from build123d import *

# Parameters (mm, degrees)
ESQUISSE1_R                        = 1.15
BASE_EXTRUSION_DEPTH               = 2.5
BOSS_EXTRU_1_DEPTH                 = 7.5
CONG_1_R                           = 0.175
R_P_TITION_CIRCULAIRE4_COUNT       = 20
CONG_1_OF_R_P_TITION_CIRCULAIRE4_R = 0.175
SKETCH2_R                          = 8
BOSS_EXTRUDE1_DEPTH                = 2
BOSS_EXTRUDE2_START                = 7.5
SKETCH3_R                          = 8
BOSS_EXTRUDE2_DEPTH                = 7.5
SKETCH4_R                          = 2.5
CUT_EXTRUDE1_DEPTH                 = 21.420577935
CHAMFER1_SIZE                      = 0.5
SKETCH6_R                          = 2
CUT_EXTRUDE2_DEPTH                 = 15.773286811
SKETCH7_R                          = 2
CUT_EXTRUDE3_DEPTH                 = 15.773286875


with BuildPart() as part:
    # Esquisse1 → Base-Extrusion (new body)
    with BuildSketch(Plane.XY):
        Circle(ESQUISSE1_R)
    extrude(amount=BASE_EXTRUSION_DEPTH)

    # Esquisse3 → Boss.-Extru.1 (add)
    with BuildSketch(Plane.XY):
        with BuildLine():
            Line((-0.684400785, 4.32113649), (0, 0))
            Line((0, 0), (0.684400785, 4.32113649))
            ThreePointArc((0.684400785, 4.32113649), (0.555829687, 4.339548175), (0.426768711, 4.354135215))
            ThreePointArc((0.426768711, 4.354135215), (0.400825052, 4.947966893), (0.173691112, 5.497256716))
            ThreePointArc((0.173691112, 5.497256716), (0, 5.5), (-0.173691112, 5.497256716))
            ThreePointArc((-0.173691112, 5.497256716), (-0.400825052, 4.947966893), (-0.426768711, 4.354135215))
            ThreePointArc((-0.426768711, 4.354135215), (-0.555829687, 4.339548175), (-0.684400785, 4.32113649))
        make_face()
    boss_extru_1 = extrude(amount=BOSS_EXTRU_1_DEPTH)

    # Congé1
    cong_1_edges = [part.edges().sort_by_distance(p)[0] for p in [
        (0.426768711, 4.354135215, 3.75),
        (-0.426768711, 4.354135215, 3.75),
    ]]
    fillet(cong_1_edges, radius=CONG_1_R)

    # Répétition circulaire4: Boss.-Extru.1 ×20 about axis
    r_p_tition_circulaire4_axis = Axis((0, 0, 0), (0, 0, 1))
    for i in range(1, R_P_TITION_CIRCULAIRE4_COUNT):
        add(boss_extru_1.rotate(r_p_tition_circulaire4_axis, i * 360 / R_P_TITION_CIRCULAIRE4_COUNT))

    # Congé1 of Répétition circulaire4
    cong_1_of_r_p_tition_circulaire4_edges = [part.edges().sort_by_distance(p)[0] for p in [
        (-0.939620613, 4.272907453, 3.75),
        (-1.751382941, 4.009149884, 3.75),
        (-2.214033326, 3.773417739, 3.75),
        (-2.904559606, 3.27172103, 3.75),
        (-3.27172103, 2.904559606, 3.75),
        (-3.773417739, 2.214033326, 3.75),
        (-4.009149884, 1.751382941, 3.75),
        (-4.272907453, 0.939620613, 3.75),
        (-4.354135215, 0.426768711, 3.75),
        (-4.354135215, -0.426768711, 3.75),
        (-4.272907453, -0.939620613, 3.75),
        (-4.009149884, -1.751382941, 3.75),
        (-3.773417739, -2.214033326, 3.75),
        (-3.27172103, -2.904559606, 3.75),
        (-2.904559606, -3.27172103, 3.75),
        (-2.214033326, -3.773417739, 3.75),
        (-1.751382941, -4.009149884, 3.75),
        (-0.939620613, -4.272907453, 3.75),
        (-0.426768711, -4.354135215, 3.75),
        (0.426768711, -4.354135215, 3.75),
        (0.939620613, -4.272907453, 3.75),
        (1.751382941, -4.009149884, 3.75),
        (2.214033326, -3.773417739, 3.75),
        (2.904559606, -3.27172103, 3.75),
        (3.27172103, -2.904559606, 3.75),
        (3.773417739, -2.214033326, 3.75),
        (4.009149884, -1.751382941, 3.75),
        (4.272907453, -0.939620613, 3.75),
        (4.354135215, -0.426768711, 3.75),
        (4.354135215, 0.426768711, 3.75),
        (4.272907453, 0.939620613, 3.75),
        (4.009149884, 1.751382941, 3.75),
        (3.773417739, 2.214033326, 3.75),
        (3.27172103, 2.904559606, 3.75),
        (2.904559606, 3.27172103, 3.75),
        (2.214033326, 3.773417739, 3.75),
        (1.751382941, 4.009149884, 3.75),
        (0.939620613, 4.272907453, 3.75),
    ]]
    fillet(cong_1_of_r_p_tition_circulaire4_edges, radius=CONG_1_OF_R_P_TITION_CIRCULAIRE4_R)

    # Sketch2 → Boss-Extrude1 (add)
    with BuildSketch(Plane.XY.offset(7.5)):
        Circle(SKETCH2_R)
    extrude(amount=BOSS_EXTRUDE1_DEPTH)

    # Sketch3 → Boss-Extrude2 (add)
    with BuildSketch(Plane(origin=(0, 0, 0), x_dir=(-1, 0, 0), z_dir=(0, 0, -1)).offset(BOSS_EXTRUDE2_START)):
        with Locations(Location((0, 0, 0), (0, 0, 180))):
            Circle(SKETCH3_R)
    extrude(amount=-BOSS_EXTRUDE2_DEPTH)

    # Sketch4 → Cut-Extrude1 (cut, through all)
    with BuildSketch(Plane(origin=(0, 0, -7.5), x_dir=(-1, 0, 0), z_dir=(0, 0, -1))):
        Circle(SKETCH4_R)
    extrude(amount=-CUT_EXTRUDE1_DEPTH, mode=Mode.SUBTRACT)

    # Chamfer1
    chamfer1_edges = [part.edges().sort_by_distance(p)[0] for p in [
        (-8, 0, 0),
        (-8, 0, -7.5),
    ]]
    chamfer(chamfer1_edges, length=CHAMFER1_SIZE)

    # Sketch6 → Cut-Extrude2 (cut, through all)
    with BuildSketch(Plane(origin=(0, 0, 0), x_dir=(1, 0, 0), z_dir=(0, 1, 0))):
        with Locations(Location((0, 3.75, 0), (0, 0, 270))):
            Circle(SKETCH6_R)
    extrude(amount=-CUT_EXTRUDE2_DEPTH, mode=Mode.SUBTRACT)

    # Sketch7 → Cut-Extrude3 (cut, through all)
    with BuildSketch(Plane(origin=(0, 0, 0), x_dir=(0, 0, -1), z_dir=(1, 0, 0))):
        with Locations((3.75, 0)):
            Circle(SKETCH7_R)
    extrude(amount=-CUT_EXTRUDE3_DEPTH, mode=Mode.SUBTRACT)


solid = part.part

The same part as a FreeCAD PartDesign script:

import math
import FreeCAD as App
import Part
import Sketcher
Q = App.Units.Quantity


def edges_at(feature, points):
    """Names of the edges that pass closest to the given points."""
    edges = feature.Shape.Edges
    near = lambda p: min(range(len(edges)), key=lambda i: edges[i].distToShape(Part.Vertex(*p))[0])
    return sorted({f"Edge{near(p) + 1}" for p in points})

doc = App.newDocument("Part")
body = doc.addObject("PartDesign::Body", "Body")

# Sketch on XY plane
sketch1 = body.newObject("Sketcher::SketchObject", "Sketch")
sketch1.AttachmentSupport = (doc.getObject("XY_Plane"), [""])
sketch1.MapMode = "FlatFace"
sketch1.addGeometry(Part.Circle(App.Vector(0, 0, 0), App.Vector(0, 0, 1), 1.1), False)
sketch1.addConstraint(Sketcher.Constraint("Coincident", 0, 3, -1, 1))
sketch1.addConstraint(Sketcher.Constraint("Diameter", 0, 2.3))
pad1 = body.newObject("PartDesign::Pad", "Pad")
pad1.Profile = sketch1
pad1.Length = 2.5

# Sketch on XY plane
sketch2 = body.newObject("Sketcher::SketchObject", "Sketch001")
sketch2.AttachmentSupport = (doc.getObject("XY_Plane"), [""])
sketch2.MapMode = "FlatFace"
sketch2.addGeometry(Part.LineSegment(App.Vector(-0.68, 4.32, 0), App.Vector(0, 0, 0)), False)
sketch2.addGeometry(Part.LineSegment(App.Vector(0, 0, 0), App.Vector(0.68, 4.32, 0)), False)
sketch2.addGeometry(Part.ArcOfCircle(Part.Circle(App.Vector(0, 0, 0), App.Vector(0, 0, 1), 4.37), math.radians(81), math.radians(84.4)), False)
sketch2.addGeometry(Part.ArcOfCircle(Part.Circle(App.Vector(-1.27, 4.58, 0), App.Vector(0, 0, 1), 1.71), math.radians(-7), math.radians(32)), False)
sketch2.addGeometry(Part.ArcOfCircle(Part.Circle(App.Vector(0, 0, 0), App.Vector(0, 0, 1), 5.5), math.radians(88.19), math.radians(91.81)), False)
sketch2.addGeometry(Part.ArcOfCircle(Part.Circle(App.Vector(1.27, 4.58, 0), App.Vector(0, 0, 1), 1.71), math.radians(148), math.radians(187)), False)
sketch2.addGeometry(Part.ArcOfCircle(Part.Circle(App.Vector(0, 0, 0), App.Vector(0, 0, 1), 4.37), math.radians(95.6), math.radians(99)), False)
sketch2.addConstraint(Sketcher.Constraint("Coincident", 0, 2, 1, 1))
sketch2.addConstraint(Sketcher.Constraint("Coincident", 1, 2, 2, 1))
sketch2.addConstraint(Sketcher.Constraint("Coincident", 2, 2, 3, 1))
sketch2.addConstraint(Sketcher.Constraint("Coincident", 3, 2, 4, 1))
sketch2.addConstraint(Sketcher.Constraint("Coincident", 4, 2, 5, 1))
sketch2.addConstraint(Sketcher.Constraint("Coincident", 5, 2, 6, 1))
sketch2.addConstraint(Sketcher.Constraint("Coincident", 6, 2, 0, 1))
sketch2.addConstraint(Sketcher.Constraint("Coincident", 2, 3, -1, 1))
sketch2.addConstraint(Sketcher.Constraint("Coincident", 4, 3, -1, 1))
sketch2.addConstraint(Sketcher.Constraint("Coincident", 6, 3, -1, 1))
sketch2.addConstraint(Sketcher.Constraint("Coincident", 0, 2, -1, 1))
sketch2.addConstraint(Sketcher.Constraint("Equal", 3, 5))
sketch2.addConstraint(Sketcher.Constraint("Equal", 2, 6))
sketch2.addConstraint(Sketcher.Constraint("Symmetric", 3, 3, 5, 3, -2))
sketch2.addConstraint(Sketcher.Constraint("Horizontal", 1, 2, 6, 2))
sketch2.addConstraint(Sketcher.Constraint("Radius", 4, 5.500001))
sketch2.addConstraint(Sketcher.Constraint("Angle", 0, Q("-81 deg")))
sketch2.addConstraint(Sketcher.Constraint("Radius", 2, 4.374999))
sketch2.addConstraint(Sketcher.Constraint("Radius", 3, 1.714578))
sketch2.addConstraint(Sketcher.Constraint("DistanceY", 1, 2, 2, 2, 0.032999))
sketch2.addConstraint(Sketcher.Constraint("DistanceX", -1, 1, 3, 2, 0.173691))
pad2 = body.newObject("PartDesign::Pad", "Pad001")
pad2.Profile = sketch2
pad2.Length = 7.5
doc.recompute()

fillet = body.newObject("PartDesign::Fillet", "Fillet")
fillet.Base = (pad2, edges_at(pad2, [(0.427, 4.354, 3.75), (-0.427, 4.354, 3.75)]))
fillet.Radius = 0.175
doc.recompute()

polarpattern = body.newObject("PartDesign::PolarPattern", "PolarPattern")
polarpattern.Originals = [pad2]
polarpattern.Axis = (doc.getObject("Z_Axis"), [""])
polarpattern.Angle = 360
polarpattern.Occurrences = 20
body.Tip = polarpattern
doc.recompute()

fillet2 = body.newObject("PartDesign::Fillet", "Fillet001")
fillet2.Base = (polarpattern, edges_at(polarpattern, [
    (-0.94, 4.273, 3.75),
    (-1.751, 4.009, 3.75),
    (-2.214, 3.773, 3.75),
    (-2.905, 3.272, 3.75),
    (-3.272, 2.905, 3.75),
    (-3.773, 2.214, 3.75),
    (-4.009, 1.751, 3.75),
    (-4.273, 0.94, 3.75),
    (-4.354, 0.427, 3.75),
    (-4.354, -0.427, 3.75),
    (-4.273, -0.94, 3.75),
    (-4.009, -1.751, 3.75),
    (-3.773, -2.214, 3.75),
    (-3.272, -2.905, 3.75),
    (-2.905, -3.272, 3.75),
    (-2.214, -3.773, 3.75),
    (-1.751, -4.009, 3.75),
    (-0.94, -4.273, 3.75),
    (-0.427, -4.354, 3.75),
    (0.427, -4.354, 3.75),
    (0.94, -4.273, 3.75),
    (1.751, -4.009, 3.75),
    (2.214, -3.773, 3.75),
    (2.905, -3.272, 3.75),
    (3.272, -2.905, 3.75),
    (3.773, -2.214, 3.75),
    (4.009, -1.751, 3.75),
    (4.273, -0.94, 3.75),
    (4.354, -0.427, 3.75),
    (4.354, 0.427, 3.75),
    (4.273, 0.94, 3.75),
    (4.009, 1.751, 3.75),
    (3.773, 2.214, 3.75),
    (3.272, 2.905, 3.75),
    (2.905, 3.272, 3.75),
    (2.214, 3.773, 3.75),
    (1.751, 4.009, 3.75),
    (0.94, 4.273, 3.75),
]))
fillet2.Radius = 0.175

# Sketch on XY plane
sketch3 = body.newObject("Sketcher::SketchObject", "Sketch002")
sketch3.AttachmentSupport = (doc.getObject("XY_Plane"), [""])
sketch3.MapMode = "FlatFace"
sketch3.AttachmentOffset = App.Placement(App.Vector(0, 0, 7.5), App.Rotation())
sketch3.addGeometry(Part.Circle(App.Vector(0, 0, 0), App.Vector(0, 0, 1), 8), False)
sketch3.addConstraint(Sketcher.Constraint("Coincident", 0, 3, -1, 1))
sketch3.addConstraint(Sketcher.Constraint("Diameter", 0, 16.0))
pad3 = body.newObject("PartDesign::Pad", "Pad002")
pad3.Profile = sketch3
pad3.Length = 2

# Sketch on XY plane
sketch4 = body.newObject("Sketcher::SketchObject", "Sketch003")
sketch4.AttachmentSupport = (doc.getObject("XY_Plane"), [""])
sketch4.MapMode = "FlatFace"
sketch4.AttachmentOffset = App.Placement(App.Vector(0, 0, -7.5), App.Rotation())
sketch4.addGeometry(Part.Circle(App.Vector(0, 0, 0), App.Vector(0, 0, 1), 8), False)
sketch4.addConstraint(Sketcher.Constraint("Coincident", 0, 3, -1, 1))
sketch4.addConstraint(Sketcher.Constraint("Diameter", 0, 16.0))
pad4 = body.newObject("PartDesign::Pad", "Pad003")
pad4.Profile = sketch4
pad4.Length = 7.5

# Sketch on XY plane
sketch5 = body.newObject("Sketcher::SketchObject", "Sketch004")
sketch5.AttachmentSupport = (doc.getObject("XY_Plane"), [""])
sketch5.MapMode = "FlatFace"
sketch5.AttachmentOffset = App.Placement(App.Vector(0, 0, -7.5), App.Rotation())
sketch5.addGeometry(Part.Circle(App.Vector(0, 0, 0), App.Vector(0, 0, 1), 2.5), False)
sketch5.addConstraint(Sketcher.Constraint("Coincident", 0, 3, -1, 1))
sketch5.addConstraint(Sketcher.Constraint("Diameter", 0, 5.0))
pocket1 = body.newObject("PartDesign::Pocket", "Pocket")
pocket1.Profile = sketch5
pocket1.Type = "ThroughAll"
pocket1.Reversed = True
doc.recompute()

chamfer = body.newObject("PartDesign::Chamfer", "Chamfer")
chamfer.Base = (pocket1, edges_at(pocket1, [(-8, 0, 0), (-8, 0, -7.5)]))
chamfer.Size = 0.5

# Sketch on XZ plane
sketch6 = body.newObject("Sketcher::SketchObject", "Sketch005")
sketch6.AttachmentSupport = (doc.getObject("XZ_Plane"), [""])
sketch6.MapMode = "FlatFace"
sketch6.addGeometry(Part.Circle(App.Vector(0, -3.8, 0), App.Vector(0, 0, 1), 2), False)
sketch6.addConstraint(Sketcher.Constraint("PointOnObject", 0, 3, -2))
sketch6.addConstraint(Sketcher.Constraint("Diameter", 0, 4.0))
sketch6.addConstraint(Sketcher.Constraint("DistanceY", 0, 3, -1, 1, 3.75))
pocket2 = body.newObject("PartDesign::Pocket", "Pocket001")
pocket2.Profile = sketch6
pocket2.Type = "ThroughAll"
pocket2.Reversed = True

# Sketch on YZ plane
sketch7 = body.newObject("Sketcher::SketchObject", "Sketch006")
sketch7.AttachmentSupport = (doc.getObject("YZ_Plane"), [""])
sketch7.MapMode = "FlatFace"
sketch7.addGeometry(Part.Circle(App.Vector(0, -3.8, 0), App.Vector(0, 0, 1), 2), False)
sketch7.addConstraint(Sketcher.Constraint("PointOnObject", 0, 3, -2))
sketch7.addConstraint(Sketcher.Constraint("Diameter", 0, 4.0))
sketch7.addConstraint(Sketcher.Constraint("DistanceY", 0, 3, -1, 1, 3.75))
pocket3 = body.newObject("PartDesign::Pocket", "Pocket002")
pocket3.Profile = sketch7
pocket3.Type = "ThroughAll"

doc.recompute()
